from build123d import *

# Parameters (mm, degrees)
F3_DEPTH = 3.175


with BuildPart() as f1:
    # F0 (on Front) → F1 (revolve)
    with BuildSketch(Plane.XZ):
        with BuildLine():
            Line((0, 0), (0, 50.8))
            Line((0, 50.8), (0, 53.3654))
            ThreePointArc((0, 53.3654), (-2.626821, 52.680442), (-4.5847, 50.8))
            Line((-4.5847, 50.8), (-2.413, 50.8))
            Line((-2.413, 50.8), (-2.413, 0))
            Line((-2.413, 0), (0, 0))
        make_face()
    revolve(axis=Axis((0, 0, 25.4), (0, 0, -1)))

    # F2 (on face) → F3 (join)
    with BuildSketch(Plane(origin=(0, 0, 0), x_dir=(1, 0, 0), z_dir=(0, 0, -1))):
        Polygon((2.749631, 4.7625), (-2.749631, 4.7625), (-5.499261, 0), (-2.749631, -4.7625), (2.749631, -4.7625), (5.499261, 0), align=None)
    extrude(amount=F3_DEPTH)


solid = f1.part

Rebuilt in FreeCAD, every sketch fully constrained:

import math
import FreeCAD as App
import Part
import Sketcher
from FreeCAD import Vector
Q = App.Units.Quantity


def add_polygon(sketch, points):
    """Adds a closed chain of lines whose ends are joined by coincident constraints."""
    first, n = sketch.GeometryCount, len(points)
    for a, b in zip(points, points[1:] + points[:1]):
        sketch.addGeometry(Part.LineSegment(App.Vector(*a, 0), App.Vector(*b, 0)), False)
    for i in range(n):
        sketch.addConstraint(Sketcher.Constraint("Coincident", first + i, 2, first + (i + 1) % n, 1))

doc = App.newDocument("Part")
body = doc.addObject("PartDesign::Body", "Body")

sketch1 = body.newObject("Sketcher::SketchObject", "Sketch")
sketch1.AttachmentSupport = (doc.getObject("XZ_Plane"), [""])
sketch1.MapMode = "FlatFace"
sketch1.addGeometry([
    Part.LineSegment(Vector(0, 0, 0), Vector(0, 53.4, 0)),
    Part.ArcOfCircle(Part.Circle(Vector(0, 48, 0), Vector(0, 0, 1), 5.4), math.radians(90), math.radians(148)),
    Part.LineSegment(Vector(-4.6, 50.8, 0), Vector(-2.4, 50.8, 0)),
    Part.LineSegment(Vector(-2.4, 50.8, 0), Vector(-2.4, 0, 0)),
    Part.LineSegment(Vector(-2.4, 0, 0), Vector(0, 0, 0)),
], False)
sketch1.addConstraint([
    Sketcher.Constraint("Coincident", 0, 2, 1, 1),
    Sketcher.Constraint("Coincident", 1, 2, 2, 1),
    Sketcher.Constraint("Coincident", 2, 2, 3, 1),
    Sketcher.Constraint("Coincident", 3, 2, 4, 1),
    Sketcher.Constraint("Coincident", 4, 2, 0, 1),
    Sketcher.Constraint("Vertical", 0),
    Sketcher.Constraint("Horizontal", 2),
    Sketcher.Constraint("Vertical", 3),
    Sketcher.Constraint("Horizontal", 4),
    Sketcher.Constraint("Coincident", 4, 2, -1, 1),
    Sketcher.Constraint("PointOnObject", 1, 3, -2),
    Sketcher.Constraint("DistanceY", 3, 2, 3, 1, Q("2 in")),
    Sketcher.Constraint("DistanceX", 4, 1, 4, 2, Q("0.095 in")),
    Sketcher.Constraint("DistanceY", 0, 1, 0, 2, Q("2.101 in")),
    Sketcher.Constraint("DistanceX", 2, 1, 2, 2, Q("0.0855 in")),
])
revolution = body.newObject("PartDesign::Revolution", "Revolution")
revolution.Profile = sketch1
revolution.ReferenceAxis = (sketch1, ["V_Axis"])
revolution.Angle = 360

sketch2 = body.newObject("Sketcher::SketchObject", "Sketch001")
sketch2.AttachmentSupport = (doc.getObject("XY_Plane"), [""])
sketch2.MapMode = "FlatFace"
add_polygon(sketch2, [(3, -5), (-3, -5), (-5, 0), (-3, 5), (3, 5), (5, 0)])
sketch2.addConstraint([
    Sketcher.Constraint("Horizontal", 0),
    Sketcher.Constraint("Horizontal", 3),
    Sketcher.Constraint("Symmetric", 0, 2, 3, 2, -1, 1),
    Sketcher.Constraint("Symmetric", 1, 2, 4, 2, -1, 1),
    Sketcher.Constraint("PointOnObject", 1, 2, -1),
    Sketcher.Constraint("Parallel", 2, 5),
    Sketcher.Constraint("Vertical", 0, 2, 2, 2),
    Sketcher.Constraint("Angle", 1, Q("119.999994 deg")),
    Sketcher.Constraint("DistanceY", 0, 2, -1, 1, Q("0.1875 in")),
    Sketcher.Constraint("DistanceX", 0, 2, 0, 1, Q("5.499262 mm")),
])
pad1 = body.newObject("PartDesign::Pad", "Pad")
pad1.Profile = sketch2
pad1.Length = Q("0.125 in")
pad1.Reversed = True

doc.recompute()
